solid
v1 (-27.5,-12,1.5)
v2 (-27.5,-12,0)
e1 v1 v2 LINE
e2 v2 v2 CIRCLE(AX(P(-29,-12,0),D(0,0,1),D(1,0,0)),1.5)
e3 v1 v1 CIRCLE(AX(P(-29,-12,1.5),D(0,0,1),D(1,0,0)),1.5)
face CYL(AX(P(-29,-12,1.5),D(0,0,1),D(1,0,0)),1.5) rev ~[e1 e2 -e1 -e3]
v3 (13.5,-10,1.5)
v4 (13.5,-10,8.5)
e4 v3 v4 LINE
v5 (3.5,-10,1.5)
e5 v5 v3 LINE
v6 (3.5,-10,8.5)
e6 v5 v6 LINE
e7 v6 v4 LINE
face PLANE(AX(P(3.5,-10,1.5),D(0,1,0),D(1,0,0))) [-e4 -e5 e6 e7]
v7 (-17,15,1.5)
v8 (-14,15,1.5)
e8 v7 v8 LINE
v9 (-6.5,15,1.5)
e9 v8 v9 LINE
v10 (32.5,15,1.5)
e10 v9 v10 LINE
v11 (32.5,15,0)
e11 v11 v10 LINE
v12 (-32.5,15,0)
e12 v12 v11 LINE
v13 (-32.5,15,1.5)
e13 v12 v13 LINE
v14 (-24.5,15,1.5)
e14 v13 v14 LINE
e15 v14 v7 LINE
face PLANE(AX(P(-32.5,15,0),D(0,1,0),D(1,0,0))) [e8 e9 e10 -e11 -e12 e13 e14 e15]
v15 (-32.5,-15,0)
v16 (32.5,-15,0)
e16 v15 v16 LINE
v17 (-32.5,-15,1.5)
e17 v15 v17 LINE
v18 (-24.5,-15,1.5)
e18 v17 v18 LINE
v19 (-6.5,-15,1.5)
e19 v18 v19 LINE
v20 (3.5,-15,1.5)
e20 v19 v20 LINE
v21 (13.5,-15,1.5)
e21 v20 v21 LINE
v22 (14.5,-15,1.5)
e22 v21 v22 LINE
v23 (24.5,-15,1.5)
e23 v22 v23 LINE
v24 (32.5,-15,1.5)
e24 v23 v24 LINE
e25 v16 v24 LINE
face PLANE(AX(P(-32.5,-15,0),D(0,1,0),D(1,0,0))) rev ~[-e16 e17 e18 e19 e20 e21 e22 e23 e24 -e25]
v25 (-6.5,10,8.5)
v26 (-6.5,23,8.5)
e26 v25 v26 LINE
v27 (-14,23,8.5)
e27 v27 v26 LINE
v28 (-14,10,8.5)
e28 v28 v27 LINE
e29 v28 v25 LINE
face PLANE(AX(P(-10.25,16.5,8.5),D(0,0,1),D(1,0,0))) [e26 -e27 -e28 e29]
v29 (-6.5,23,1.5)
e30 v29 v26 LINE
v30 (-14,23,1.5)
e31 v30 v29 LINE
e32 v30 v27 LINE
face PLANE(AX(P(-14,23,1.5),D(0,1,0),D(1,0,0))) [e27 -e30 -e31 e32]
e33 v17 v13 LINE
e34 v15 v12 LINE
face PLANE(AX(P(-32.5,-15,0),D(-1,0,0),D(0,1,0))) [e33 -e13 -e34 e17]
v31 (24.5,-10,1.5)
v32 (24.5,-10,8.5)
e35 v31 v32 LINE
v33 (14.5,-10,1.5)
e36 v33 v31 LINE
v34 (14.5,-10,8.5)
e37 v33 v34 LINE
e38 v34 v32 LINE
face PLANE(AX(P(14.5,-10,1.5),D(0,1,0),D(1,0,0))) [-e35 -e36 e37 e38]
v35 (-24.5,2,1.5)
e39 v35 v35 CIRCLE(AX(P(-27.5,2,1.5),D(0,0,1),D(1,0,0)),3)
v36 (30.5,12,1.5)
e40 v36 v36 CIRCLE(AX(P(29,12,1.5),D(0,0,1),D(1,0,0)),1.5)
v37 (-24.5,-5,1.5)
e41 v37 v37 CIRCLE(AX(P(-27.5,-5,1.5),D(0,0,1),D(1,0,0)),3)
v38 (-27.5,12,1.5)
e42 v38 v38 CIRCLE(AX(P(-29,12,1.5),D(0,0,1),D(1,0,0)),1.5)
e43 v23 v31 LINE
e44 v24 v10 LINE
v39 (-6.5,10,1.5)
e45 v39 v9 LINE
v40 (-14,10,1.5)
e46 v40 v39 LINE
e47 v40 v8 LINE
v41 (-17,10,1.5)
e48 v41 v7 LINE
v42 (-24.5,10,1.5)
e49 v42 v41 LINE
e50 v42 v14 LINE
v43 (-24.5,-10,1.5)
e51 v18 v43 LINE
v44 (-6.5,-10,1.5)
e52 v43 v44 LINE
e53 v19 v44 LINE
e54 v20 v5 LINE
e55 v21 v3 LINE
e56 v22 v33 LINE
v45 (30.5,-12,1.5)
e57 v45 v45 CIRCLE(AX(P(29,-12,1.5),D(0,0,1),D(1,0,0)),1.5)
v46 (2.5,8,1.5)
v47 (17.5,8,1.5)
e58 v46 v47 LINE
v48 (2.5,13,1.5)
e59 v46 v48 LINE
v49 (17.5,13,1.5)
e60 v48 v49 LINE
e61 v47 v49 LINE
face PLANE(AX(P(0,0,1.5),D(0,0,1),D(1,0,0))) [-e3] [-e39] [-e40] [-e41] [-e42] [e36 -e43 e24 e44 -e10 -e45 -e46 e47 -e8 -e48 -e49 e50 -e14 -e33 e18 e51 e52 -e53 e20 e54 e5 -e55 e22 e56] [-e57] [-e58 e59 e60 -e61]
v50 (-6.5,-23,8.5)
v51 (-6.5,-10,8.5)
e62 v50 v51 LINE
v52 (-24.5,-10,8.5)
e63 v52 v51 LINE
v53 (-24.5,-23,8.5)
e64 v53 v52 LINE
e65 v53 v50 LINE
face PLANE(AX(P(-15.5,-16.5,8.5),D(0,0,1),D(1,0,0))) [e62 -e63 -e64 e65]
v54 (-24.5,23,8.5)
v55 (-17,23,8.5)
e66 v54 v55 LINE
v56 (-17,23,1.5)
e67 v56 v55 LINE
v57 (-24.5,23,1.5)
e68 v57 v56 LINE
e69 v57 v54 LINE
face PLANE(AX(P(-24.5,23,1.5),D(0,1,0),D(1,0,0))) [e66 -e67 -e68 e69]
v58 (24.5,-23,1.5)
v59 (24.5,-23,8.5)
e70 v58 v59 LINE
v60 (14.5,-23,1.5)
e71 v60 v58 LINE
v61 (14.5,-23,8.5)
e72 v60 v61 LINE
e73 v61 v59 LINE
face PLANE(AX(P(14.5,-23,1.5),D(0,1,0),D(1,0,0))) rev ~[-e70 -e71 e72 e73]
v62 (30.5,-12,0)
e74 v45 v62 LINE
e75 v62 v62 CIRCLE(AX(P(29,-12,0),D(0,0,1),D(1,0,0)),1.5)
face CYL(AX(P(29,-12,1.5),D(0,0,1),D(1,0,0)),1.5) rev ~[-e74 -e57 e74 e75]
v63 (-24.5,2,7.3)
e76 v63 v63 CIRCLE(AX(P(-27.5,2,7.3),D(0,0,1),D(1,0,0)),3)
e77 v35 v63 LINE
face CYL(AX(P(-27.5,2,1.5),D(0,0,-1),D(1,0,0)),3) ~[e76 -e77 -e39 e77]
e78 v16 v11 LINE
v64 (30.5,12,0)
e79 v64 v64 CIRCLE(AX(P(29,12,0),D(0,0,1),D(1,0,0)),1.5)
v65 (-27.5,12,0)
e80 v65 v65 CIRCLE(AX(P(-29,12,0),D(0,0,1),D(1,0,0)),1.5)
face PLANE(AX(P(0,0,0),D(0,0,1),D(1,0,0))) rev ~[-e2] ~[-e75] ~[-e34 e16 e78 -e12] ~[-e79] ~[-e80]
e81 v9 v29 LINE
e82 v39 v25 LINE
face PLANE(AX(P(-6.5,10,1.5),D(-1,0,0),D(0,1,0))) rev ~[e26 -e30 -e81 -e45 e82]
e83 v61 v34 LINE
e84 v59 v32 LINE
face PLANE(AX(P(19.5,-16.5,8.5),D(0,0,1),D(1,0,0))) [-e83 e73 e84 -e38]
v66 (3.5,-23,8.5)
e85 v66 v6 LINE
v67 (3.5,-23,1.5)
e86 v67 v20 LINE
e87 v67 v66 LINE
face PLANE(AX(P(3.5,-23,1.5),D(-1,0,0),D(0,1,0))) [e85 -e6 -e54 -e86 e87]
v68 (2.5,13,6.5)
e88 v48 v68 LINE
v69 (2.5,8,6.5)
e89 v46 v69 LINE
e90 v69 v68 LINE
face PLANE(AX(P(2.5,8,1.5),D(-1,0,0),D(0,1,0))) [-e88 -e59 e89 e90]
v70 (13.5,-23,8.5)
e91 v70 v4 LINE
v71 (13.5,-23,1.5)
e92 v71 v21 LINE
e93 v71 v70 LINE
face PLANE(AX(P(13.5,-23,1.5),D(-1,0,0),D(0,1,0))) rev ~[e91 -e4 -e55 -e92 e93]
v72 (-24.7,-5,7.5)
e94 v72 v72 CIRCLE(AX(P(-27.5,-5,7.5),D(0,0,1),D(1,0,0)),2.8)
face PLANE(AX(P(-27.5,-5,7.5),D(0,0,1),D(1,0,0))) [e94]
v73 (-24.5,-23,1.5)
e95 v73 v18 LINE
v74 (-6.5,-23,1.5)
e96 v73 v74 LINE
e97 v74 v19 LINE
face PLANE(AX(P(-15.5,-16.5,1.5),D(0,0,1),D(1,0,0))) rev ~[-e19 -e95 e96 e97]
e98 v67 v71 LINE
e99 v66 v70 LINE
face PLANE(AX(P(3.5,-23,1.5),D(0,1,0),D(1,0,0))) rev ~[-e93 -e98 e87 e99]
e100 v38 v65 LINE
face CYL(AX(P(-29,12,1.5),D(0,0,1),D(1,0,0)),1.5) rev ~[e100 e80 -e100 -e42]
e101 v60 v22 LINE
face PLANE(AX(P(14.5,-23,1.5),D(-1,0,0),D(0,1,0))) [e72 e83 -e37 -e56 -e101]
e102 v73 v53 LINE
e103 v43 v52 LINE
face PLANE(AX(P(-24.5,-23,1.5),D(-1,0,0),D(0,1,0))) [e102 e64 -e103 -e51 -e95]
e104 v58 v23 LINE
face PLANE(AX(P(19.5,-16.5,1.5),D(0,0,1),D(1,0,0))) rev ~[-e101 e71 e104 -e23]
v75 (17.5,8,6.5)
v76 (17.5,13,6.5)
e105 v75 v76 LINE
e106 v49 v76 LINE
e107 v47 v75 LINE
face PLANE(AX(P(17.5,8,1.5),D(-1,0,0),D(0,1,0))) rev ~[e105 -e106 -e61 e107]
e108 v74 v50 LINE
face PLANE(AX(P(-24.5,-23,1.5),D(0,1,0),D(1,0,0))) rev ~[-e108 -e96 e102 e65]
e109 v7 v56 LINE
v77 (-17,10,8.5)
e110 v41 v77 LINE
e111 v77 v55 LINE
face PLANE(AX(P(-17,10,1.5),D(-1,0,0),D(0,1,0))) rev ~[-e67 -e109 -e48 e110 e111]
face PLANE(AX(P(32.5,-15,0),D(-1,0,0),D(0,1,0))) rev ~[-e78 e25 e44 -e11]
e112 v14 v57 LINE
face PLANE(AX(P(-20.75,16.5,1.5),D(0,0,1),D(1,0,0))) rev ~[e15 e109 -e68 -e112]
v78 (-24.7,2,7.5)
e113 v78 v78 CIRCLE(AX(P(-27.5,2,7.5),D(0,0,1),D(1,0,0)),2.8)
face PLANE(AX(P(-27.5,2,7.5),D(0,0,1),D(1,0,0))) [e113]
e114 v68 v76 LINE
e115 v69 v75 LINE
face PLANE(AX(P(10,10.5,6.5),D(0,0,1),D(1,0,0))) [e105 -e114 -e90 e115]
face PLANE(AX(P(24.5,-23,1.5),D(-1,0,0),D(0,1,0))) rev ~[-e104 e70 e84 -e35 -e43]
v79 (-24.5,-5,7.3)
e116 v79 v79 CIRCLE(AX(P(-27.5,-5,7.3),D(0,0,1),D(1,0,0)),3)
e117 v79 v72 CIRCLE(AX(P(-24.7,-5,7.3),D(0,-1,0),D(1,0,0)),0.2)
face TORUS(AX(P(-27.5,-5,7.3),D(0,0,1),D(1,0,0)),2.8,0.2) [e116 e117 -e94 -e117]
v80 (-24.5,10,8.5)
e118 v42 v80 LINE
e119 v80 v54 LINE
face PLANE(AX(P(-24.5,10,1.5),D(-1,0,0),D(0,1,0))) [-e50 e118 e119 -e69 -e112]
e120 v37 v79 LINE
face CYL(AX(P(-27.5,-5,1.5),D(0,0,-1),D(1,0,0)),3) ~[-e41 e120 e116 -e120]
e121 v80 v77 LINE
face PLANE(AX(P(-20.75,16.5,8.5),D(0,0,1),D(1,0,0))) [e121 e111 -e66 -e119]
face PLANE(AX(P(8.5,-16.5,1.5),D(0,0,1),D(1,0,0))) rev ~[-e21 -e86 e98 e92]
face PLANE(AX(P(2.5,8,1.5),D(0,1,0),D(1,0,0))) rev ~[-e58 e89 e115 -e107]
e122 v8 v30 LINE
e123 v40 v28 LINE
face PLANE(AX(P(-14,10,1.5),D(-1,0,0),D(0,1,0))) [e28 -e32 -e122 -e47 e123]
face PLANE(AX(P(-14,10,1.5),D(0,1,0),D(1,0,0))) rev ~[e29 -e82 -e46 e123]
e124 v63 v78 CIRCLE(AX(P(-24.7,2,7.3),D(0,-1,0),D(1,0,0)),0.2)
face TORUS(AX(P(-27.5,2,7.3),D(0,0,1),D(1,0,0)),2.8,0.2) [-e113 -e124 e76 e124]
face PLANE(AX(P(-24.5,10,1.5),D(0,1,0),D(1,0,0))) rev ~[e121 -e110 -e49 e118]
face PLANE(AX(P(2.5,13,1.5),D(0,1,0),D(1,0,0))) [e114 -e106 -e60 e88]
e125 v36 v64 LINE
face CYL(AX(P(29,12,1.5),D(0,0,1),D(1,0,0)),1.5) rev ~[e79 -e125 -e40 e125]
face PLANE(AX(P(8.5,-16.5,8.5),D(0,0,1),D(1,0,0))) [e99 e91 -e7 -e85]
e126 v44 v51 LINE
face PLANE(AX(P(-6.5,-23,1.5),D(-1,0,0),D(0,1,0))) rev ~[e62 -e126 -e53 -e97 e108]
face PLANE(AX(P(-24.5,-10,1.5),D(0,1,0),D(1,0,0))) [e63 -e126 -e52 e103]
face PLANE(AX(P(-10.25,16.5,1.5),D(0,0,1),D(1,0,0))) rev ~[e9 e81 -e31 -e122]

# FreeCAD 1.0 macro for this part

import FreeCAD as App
import Part
import Sketcher

V = App.Vector
Q = App.Units.Quantity


def edges_at(feature, points):
    """Names of the edges that pass closest to the given points."""
    edges = feature.Shape.Edges
    near = lambda p: min(range(len(edges)), key=lambda i: edges[i].distToShape(Part.Vertex(*p))[0])
    return sorted({f"Edge{near(p) + 1}" for p in points})

doc = App.newDocument("Part")
body = doc.addObject("PartDesign::Body", "Body")

sketch1 = body.newObject("Sketcher::SketchObject", "Sketch")
sketch1.AttachmentSupport = (doc.getObject("XY_Plane"), [""])
sketch1.MapMode = "FlatFace"
sketch1.addGeometry([
    Part.LineSegment(V(-32, 15, 0), V(-32, -15, 0)),
    Part.LineSegment(V(-32, -15, 0), V(32, -15, 0)),
    Part.LineSegment(V(32, -15, 0), V(32, 15, 0)),
    Part.LineSegment(V(32, 15, 0), V(-32, 15, 0)),
], False)
sketch1.addConstraint([
    Sketcher.Constraint("Coincident", 0, 2, 1, 1),
    Sketcher.Constraint("Coincident", 1, 2, 2, 1),
    Sketcher.Constraint("Coincident", 2, 2, 3, 1),
    Sketcher.Constraint("Coincident", 3, 2, 0, 1),
    Sketcher.Constraint("Vertical", 0),
    Sketcher.Constraint("Horizontal", 1),
    Sketcher.Constraint("Vertical", 2),
    Sketcher.Constraint("Horizontal", 3),
    Sketcher.Constraint("Symmetric", 0, 2, 2, 2, -1, 1),
    Sketcher.Constraint("DistanceX", 1, 1, 1, 2, Q("65 mm")),
    Sketcher.Constraint("DistanceY", 0, 2, 0, 1, Q("30 mm")),
])
pad1 = body.newObject("PartDesign::Pad", "Pad")
pad1.Profile = sketch1
pad1.Length = 1.5

sketch2 = body.newObject("Sketcher::SketchObject", "Sketch001")
sketch2.AttachmentSupport = (doc.getObject("XY_Plane"), [""])
sketch2.MapMode = "FlatFace"
sketch2.AttachmentOffset = App.Placement(V(0, 0, 1.5), App.Rotation())
sketch2.addGeometry([
    Part.Circle(V(-29, 12, 0), V(0, 0, 1), 1.5),
    Part.Circle(V(-29, -12, 0), V(0, 0, 1), 1.5),
    Part.Circle(V(29, 12, 0), V(0, 0, 1), 1.5),
    Part.Circle(V(29, -12, 0), V(0, 0, 1), 1.5),
], False)
sketch2.addConstraint([
    Sketcher.Constraint("Equal", 0, 1),
    Sketcher.Constraint("Equal", 1, 2),
    Sketcher.Constraint("Equal", 2, 3),
    Sketcher.Constraint("Symmetric", 1, 3, 2, 3, -1, 1),
    Sketcher.Constraint("Symmetric", 0, 3, 3, 3, -1, 1),
    Sketcher.Constraint("Symmetric", 0, 3, 2, 3, -2),
    Sketcher.Constraint("Diameter", 0, Q("3 mm")),
    Sketcher.Constraint("DistanceX", 0, 3, -1, 1, Q("29 mm")),
    Sketcher.Constraint("DistanceY", -1, 1, 0, 3, Q("12 mm")),
])
pocket1 = body.newObject("PartDesign::Pocket", "Pocket")
pocket1.Profile = sketch2
pocket1.Type = "ThroughAll"

sketch3 = body.newObject("Sketcher::SketchObject", "Sketch002")
sketch3.AttachmentSupport = (doc.getObject("XY_Plane"), [""])
sketch3.MapMode = "FlatFace"
sketch3.AttachmentOffset = App.Placement(V(0, 0, 1.5), App.Rotation())
sketch3.addGeometry([
    Part.Circle(V(-27.5, 2, 0), V(0, 0, 1), 3),
    Part.Circle(V(-27.5, -5, 0), V(0, 0, 1), 3),
], False)
sketch3.addConstraint([
    Sketcher.Constraint("Equal", 0, 1),
    Sketcher.Constraint("Vertical", 0, 3, 1, 3),
    Sketcher.Constraint("Diameter", 0, Q("6 mm")),
    Sketcher.Constraint("DistanceY", -1, 1, 0, 3, Q("2 mm")),
    Sketcher.Constraint("DistanceY", 1, 3, -1, 1, Q("5 mm")),
    Sketcher.Constraint("DistanceX", 0, 3, -1, 1, Q("27.5 mm")),
])
pad2 = body.newObject("PartDesign::Pad", "Pad001")
pad2.Profile = sketch3
pad2.Length = 6
doc.recompute()

fillet = body.newObject("PartDesign::Fillet", "Fillet")
fillet.Base = (pad2, edges_at(pad2, [(-30.5, 2, 7.5), (-30.5, -5, 7.5)]))
fillet.Radius = 0.2

sketch4 = body.newObject("Sketcher::SketchObject", "Sketch003")
sketch4.AttachmentSupport = (doc.getObject("XY_Plane"), [""])
sketch4.MapMode = "FlatFace"
sketch4.AttachmentOffset = App.Placement(V(0, 0, 1.5), App.Rotation())
sketch4.addGeometry([
    Part.LineSegment(V(-24, 23, 0), V(-24, 10, 0)),
    Part.LineSegment(V(-24, 10, 0), V(-17, 10, 0)),
    Part.LineSegment(V(-17, 10, 0), V(-17, 23, 0)),
    Part.LineSegment(V(-17, 23, 0), V(-24, 23, 0)),
    Part.LineSegment(V(-14, 23, 0), V(-14, 10, 0)),
    Part.LineSegment(V(-14, 10, 0), V(-6, 10, 0)),
    Part.LineSegment(V(-6, 10, 0), V(-6, 23, 0)),
    Part.LineSegment(V(-6, 23, 0), V(-14, 23, 0)),
    Part.LineSegment(V(-24, -10, 0), V(-24, -23, 0)),
    Part.LineSegment(V(-24, -23, 0), V(-6, -23, 0)),
    Part.LineSegment(V(-6, -23, 0), V(-6, -10, 0)),
    Part.LineSegment(V(-6, -10, 0), V(-24, -10, 0)),
    Part.LineSegment(V(14, -10, 0), V(14, -23, 0)),
    Part.LineSegment(V(14, -23, 0), V(24, -23, 0)),
    Part.LineSegment(V(24, -23, 0), V(24, -10, 0)),
    Part.LineSegment(V(24, -10, 0), V(14, -10, 0)),
    Part.LineSegment(V(4, -10, 0), V(4, -23, 0)),
    Part.LineSegment(V(4, -23, 0), V(14, -23, 0)),
    Part.LineSegment(V(14, -23, 0), V(14, -10, 0)),
    Part.LineSegment(V(14, -10, 0), V(4, -10, 0)),
], False)
sketch4.addConstraint([
    Sketcher.Constraint("Coincident", 0, 2, 1, 1),
    Sketcher.Constraint("Coincident", 1, 2, 2, 1),
    Sketcher.Constraint("Coincident", 2, 2, 3, 1),
    Sketcher.Constraint("Coincident", 3, 2, 0, 1),
    Sketcher.Constraint("Coincident", 4, 2, 5, 1),
    Sketcher.Constraint("Coincident", 5, 2, 6, 1),
    Sketcher.Constraint("Coincident", 6, 2, 7, 1),
    Sketcher.Constraint("Coincident", 7, 2, 4, 1),
    Sketcher.Constraint("Coincident", 8, 2, 9, 1),
    Sketcher.Constraint("Coincident", 9, 2, 10, 1),
    Sketcher.Constraint("Coincident", 10, 2, 11, 1),
    Sketcher.Constraint("Coincident", 11, 2, 8, 1),
    Sketcher.Constraint("Coincident", 12, 2, 13, 1),
    Sketcher.Constraint("Coincident", 13, 2, 14, 1),
    Sketcher.Constraint("Coincident", 14, 2, 15, 1),
    Sketcher.Constraint("Coincident", 15, 2, 12, 1),
    Sketcher.Constraint("Coincident", 16, 2, 17, 1),
    Sketcher.Constraint("Coincident", 17, 2, 18, 1),
    Sketcher.Constraint("Coincident", 18, 2, 19, 1),
    Sketcher.Constraint("Coincident", 19, 2, 16, 1),
    Sketcher.Constraint("Vertical", 0),
    Sketcher.Constraint("Horizontal", 1),
    Sketcher.Constraint("Vertical", 2),
    Sketcher.Constraint("Horizontal", 3),
    Sketcher.Constraint("Vertical", 4),
    Sketcher.Constraint("Horizontal", 5),
    Sketcher.Constraint("Vertical", 6),
    Sketcher.Constraint("Horizontal", 7),
    Sketcher.Constraint("Vertical", 8),
    Sketcher.Constraint("Horizontal", 9),
    Sketcher.Constraint("Vertical", 10),
    Sketcher.Constraint("Horizontal", 11),
    Sketcher.Constraint("Vertical", 12),
    Sketcher.Constraint("Horizontal", 13),
    Sketcher.Constraint("Vertical", 14),
    Sketcher.Constraint("Horizontal", 15),
    Sketcher.Constraint("Vertical", 16),
    Sketcher.Constraint("Horizontal", 17),
    Sketcher.Constraint("Vertical", 18),
    Sketcher.Constraint("Horizontal", 19),
    Sketcher.Constraint("Symmetric", 3, 2, 13, 2, -1, 1),
    Sketcher.Constraint("Symmetric", 8, 2, 13, 2, -2),
    Sketcher.Constraint("Symmetric", 6, 2, 9, 2, -1),
    Sketcher.Constraint("Horizontal", 1, 2, 4, 2),
    Sketcher.Constraint("Horizontal", 11, 2, 14, 2),
    Sketcher.Constraint("Horizontal", 13, 2, 16, 2),
    Sketcher.Constraint("Horizontal", 15, 2, 18, 2),
    Sketcher.Constraint("Equal", 3, 5),
    Sketcher.Constraint("Equal", 15, 17),
    Sketcher.Constraint("Equal", 6, 8),
    Sketcher.Constraint("DistanceX", 9, 1, 9, 2, Q("18 mm")),
    Sketcher.Constraint("DistanceX", 13, 1, 13, 2, Q("10 mm")),
    Sketcher.Constraint("DistanceY", 0, 2, 0, 1, Q("13 mm")),
    Sketcher.Constraint("DistanceX", 1, 1, 1, 2, Q("7.5 mm")),
    Sketcher.Constraint("DistanceY", -1, 1, 0, 2, Q("10 mm")),
    Sketcher.Constraint("DistanceX", 1, 2, -1, 1, Q("17 mm")),
    Sketcher.Constraint("DistanceX", 9, 2, 16, 2, Q("10 mm")),
])
pad3 = body.newObject("PartDesign::Pad", "Pad002")
pad3.Profile = sketch4
pad3.Length = 7

sketch5 = body.newObject("Sketcher::SketchObject", "Sketch004")
sketch5.AttachmentSupport = (doc.getObject("XY_Plane"), [""])
sketch5.MapMode = "FlatFace"
sketch5.AttachmentOffset = App.Placement(V(0, 0, 1.5), App.Rotation())
sketch5.addGeometry([
    Part.LineSegment(V(2, 13, 0), V(2, 8, 0)),
    Part.LineSegment(V(2, 8, 0), V(18, 8, 0)),
    Part.LineSegment(V(18, 8, 0), V(18, 13, 0)),
    Part.LineSegment(V(18, 13, 0), V(2, 13, 0)),
], False)
sketch5.addConstraint([
    Sketcher.Constraint("Coincident", 0, 2, 1, 1),
    Sketcher.Constraint("Coincident", 1, 2, 2, 1),
    Sketcher.Constraint("Coincident", 2, 2, 3, 1),
    Sketcher.Constraint("Coincident", 3, 2, 0, 1),
    Sketcher.Constraint("Vertical", 0),
    Sketcher.Constraint("Horizontal", 1),
    Sketcher.Constraint("Vertical", 2),
    Sketcher.Constraint("Horizontal", 3),
    Sketcher.Constraint("DistanceX", 1, 1, 1, 2, Q("15 mm")),
    Sketcher.Constraint("DistanceY", 0, 2, 0, 1, Q("5 mm")),
    Sketcher.Constraint("DistanceY", -1, 1, 0, 2, Q("8 mm")),
    Sketcher.Constraint("DistanceX", -1, 1, 0, 2, Q("2.5 mm")),
])
pad4 = body.newObject("PartDesign::Pad", "Pad003")
pad4.Profile = sketch5
pad4.Length = 5

doc.recompute()
